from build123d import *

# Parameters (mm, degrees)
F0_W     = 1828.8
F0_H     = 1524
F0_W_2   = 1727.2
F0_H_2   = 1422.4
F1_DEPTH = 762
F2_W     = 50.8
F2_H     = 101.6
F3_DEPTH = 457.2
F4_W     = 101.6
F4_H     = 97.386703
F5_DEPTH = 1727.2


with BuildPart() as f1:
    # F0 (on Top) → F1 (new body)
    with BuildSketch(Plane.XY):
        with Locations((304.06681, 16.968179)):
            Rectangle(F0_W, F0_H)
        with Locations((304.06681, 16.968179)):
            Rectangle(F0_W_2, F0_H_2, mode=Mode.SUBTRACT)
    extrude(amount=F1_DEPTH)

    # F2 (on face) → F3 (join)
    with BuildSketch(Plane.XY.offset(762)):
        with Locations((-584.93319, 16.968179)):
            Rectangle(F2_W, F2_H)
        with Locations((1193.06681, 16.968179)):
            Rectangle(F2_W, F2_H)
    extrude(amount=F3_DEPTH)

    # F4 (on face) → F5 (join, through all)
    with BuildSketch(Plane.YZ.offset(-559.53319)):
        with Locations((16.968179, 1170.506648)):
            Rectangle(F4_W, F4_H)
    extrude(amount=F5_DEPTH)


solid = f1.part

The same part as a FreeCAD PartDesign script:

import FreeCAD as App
import Part
import Sketcher
from FreeCAD import Vector
Q = App.Units.Quantity


def add_polygon(sketch, points):
    """Adds a closed chain of lines whose ends are joined by coincident constraints."""
    first, n = sketch.GeometryCount, len(points)
    for a, b in zip(points, points[1:] + points[:1]):
        sketch.addGeometry(Part.LineSegment(App.Vector(*a, 0), App.Vector(*b, 0)), False)
    for i in range(n):
        sketch.addConstraint(Sketcher.Constraint("Coincident", first + i, 2, first + (i + 1) % n, 1))

doc = App.newDocument("Part")
params = doc.addObject("Spreadsheet::Sheet", "Params")
for row, (alias, value) in enumerate([
    ("sketch1_width", "72 in"),
    ("sketch1_width2", "68 in"),
    ("sketch1_height", "60 in"),
    ("sketch1_height2", "56 in"),
    ("pad1_length", "30 in"),
    ("sketch2_width", "2 in"),
    ("sketch2_height", "4 in"),
    ("pad2_length", "18 in"),
    ("sketch3_width", "4 in"),
], start=1):
    params.set(f"A{row}", alias)
    params.set(f"B{row}", "=" + value)
    params.setAlias(f"B{row}", alias)

body = doc.addObject("PartDesign::Body", "Body")

# Sketch on XY plane
sketch1 = body.newObject("Sketcher::SketchObject", "Sketch")
sketch1.AttachmentSupport = (doc.getObject("XY_Plane"), [""])
sketch1.MapMode = "FlatFace"
add_polygon(sketch1, [(-610.33319, 778.968179), (-610.33319, -745.031821), (1218.46681, -745.031821), (1218.46681, 778.968179)])  # lines 0-3
add_polygon(sketch1, [(1167.66681, -694.231821), (-559.53319, -694.231821), (-559.53319, 728.168179), (1167.66681, 728.168179)])  # lines 4-7
sketch1.addConstraint(Sketcher.Constraint("Vertical", 0))
sketch1.addConstraint(Sketcher.Constraint("Horizontal", 1))
sketch1.addConstraint(Sketcher.Constraint("Vertical", 2))
sketch1.addConstraint(Sketcher.Constraint("Horizontal", 3))
sketch1.addConstraint(Sketcher.Constraint("Horizontal", 4))
sketch1.addConstraint(Sketcher.Constraint("Vertical", 5))
sketch1.addConstraint(Sketcher.Constraint("Horizontal", 6))
sketch1.addConstraint(Sketcher.Constraint("Vertical", 7))
sketch1.addConstraint(Sketcher.Constraint("DistanceX", 1, 1, 1, 2, Q("72 in")))
sketch1.addConstraint(Sketcher.Constraint("DistanceX", 4, 2, 4, 1, Q("68 in")))
sketch1.addConstraint(Sketcher.Constraint("DistanceY", 0, 2, 0, 1, Q("60 in")))
sketch1.addConstraint(Sketcher.Constraint("DistanceY", 5, 1, 5, 2, Q("56 in")))
sketch1.addConstraint(Sketcher.Constraint("DistanceX", 0, 2, 4, 2, Q("2 in")))
sketch1.addConstraint(Sketcher.Constraint("DistanceY", 0, 2, 4, 2, Q("2 in")))
sketch1.addConstraint(Sketcher.Constraint("DistanceX", 0, 2, -1, 1, Q("610.33319 mm")))
sketch1.addConstraint(Sketcher.Constraint("DistanceY", 0, 2, -1, 1, Q("745.031821 mm")))
sketch1.setExpression("Constraints[16]", "Params.sketch1_width")
sketch1.setExpression("Constraints[17]", "Params.sketch1_width2")
sketch1.setExpression("Constraints[18]", "Params.sketch1_height")
sketch1.setExpression("Constraints[19]", "Params.sketch1_height2")
pad1 = body.newObject("PartDesign::Pad", "Pad")
pad1.Profile = sketch1
pad1.setExpression("Length", "Params.pad1_length")

# Sketch on XY plane
sketch2 = body.newObject("Sketcher::SketchObject", "Sketch001")
sketch2.AttachmentSupport = (doc.getObject("XY_Plane"), [""])
sketch2.MapMode = "FlatFace"
sketch2.AttachmentOffset = App.Placement(Vector(0, 0, 30 * 25.4), App.Rotation())
add_polygon(sketch2, [(-610.33319, 67.768179), (-610.33319, -33.831821), (-559.53319, -33.831821), (-559.53319, 67.768179)])  # lines 0-3
add_polygon(sketch2, [(1167.66681, 67.768179), (1167.66681, -33.831821), (1218.46681, -33.831821), (1218.46681, 67.768179)])  # lines 4-7
sketch2.addConstraint(Sketcher.Constraint("Vertical", 0))
sketch2.addConstraint(Sketcher.Constraint("Horizontal", 1))
sketch2.addConstraint(Sketcher.Constraint("Vertical", 2))
sketch2.addConstraint(Sketcher.Constraint("Horizontal", 3))
sketch2.addConstraint(Sketcher.Constraint("Vertical", 4))
sketch2.addConstraint(Sketcher.Constraint("Horizontal", 5))
sketch2.addConstraint(Sketcher.Constraint("Vertical", 6))
sketch2.addConstraint(Sketcher.Constraint("Horizontal", 7))
sketch2.addConstraint(Sketcher.Constraint("Horizontal", 1, 2, 4, 2))
sketch2.addConstraint(Sketcher.Constraint("Horizontal", 3, 2, 6, 2))
sketch2.addConstraint(Sketcher.Constraint("Equal", 3, 5))
sketch2.addConstraint(Sketcher.Constraint("DistanceX", 1, 1, 1, 2, Q("2 in")))
sketch2.addConstraint(Sketcher.Constraint("DistanceY", 0, 2, 0, 1, Q("4 in")))
sketch2.addConstraint(Sketcher.Constraint("DistanceX", 1, 2, 4, 2, Q("68 in")))
sketch2.addConstraint(Sketcher.Constraint("DistanceX", 0, 2, -1, 1, Q("610.33319 mm")))
sketch2.addConstraint(Sketcher.Constraint("DistanceY", 0, 2, -1, 1, Q("33.831821 mm")))
sketch2.setExpression("Constraints[19]", "Params.sketch2_width")
sketch2.setExpression("Constraints[20]", "Params.sketch2_height")
pad2 = body.newObject("PartDesign::Pad", "Pad001")
pad2.Profile = sketch2
pad2.setExpression("Length", "Params.pad2_length")

# Sketch on YZ plane
sketch3 = body.newObject("Sketcher::SketchObject", "Sketch002")
sketch3.AttachmentSupport = (doc.getObject("YZ_Plane"), [""])
sketch3.MapMode = "FlatFace"
sketch3.AttachmentOffset = App.Placement(Vector(0, 0, -559.53319), App.Rotation())
add_polygon(sketch3, [(-33.831821, 1219.2), (-33.831821, 1121.813296), (67.768179, 1121.813296), (67.768179, 1219.2)])  # lines 0-3
sketch3.addConstraint(Sketcher.Constraint("Vertical", 0))
sketch3.addConstraint(Sketcher.Constraint("Horizontal", 1))
sketch3.addConstraint(Sketcher.Constraint("Vertical", 2))
sketch3.addConstraint(Sketcher.Constraint("Horizontal", 3))
sketch3.addConstraint(Sketcher.Constraint("DistanceX", 1, 1, 1, 2, Q("4 in")))
sketch3.addConstraint(Sketcher.Constraint("DistanceY", -1, 1, 2, 2, Q("48 in")))
sketch3.addConstraint(Sketcher.Constraint("DistanceY", 0, 2, 0, 1, Q("97.386703 mm")))
sketch3.addConstraint(Sketcher.Constraint("DistanceX", 0, 2, -1, 1, Q("33.831821 mm")))
sketch3.setExpression("Constraints[8]", "Params.sketch3_width")
pad3 = body.newObject("PartDesign::Pad", "Pad002")
pad3.Profile = sketch3
pad3.Type = "UpToLast"

doc.recompute()
